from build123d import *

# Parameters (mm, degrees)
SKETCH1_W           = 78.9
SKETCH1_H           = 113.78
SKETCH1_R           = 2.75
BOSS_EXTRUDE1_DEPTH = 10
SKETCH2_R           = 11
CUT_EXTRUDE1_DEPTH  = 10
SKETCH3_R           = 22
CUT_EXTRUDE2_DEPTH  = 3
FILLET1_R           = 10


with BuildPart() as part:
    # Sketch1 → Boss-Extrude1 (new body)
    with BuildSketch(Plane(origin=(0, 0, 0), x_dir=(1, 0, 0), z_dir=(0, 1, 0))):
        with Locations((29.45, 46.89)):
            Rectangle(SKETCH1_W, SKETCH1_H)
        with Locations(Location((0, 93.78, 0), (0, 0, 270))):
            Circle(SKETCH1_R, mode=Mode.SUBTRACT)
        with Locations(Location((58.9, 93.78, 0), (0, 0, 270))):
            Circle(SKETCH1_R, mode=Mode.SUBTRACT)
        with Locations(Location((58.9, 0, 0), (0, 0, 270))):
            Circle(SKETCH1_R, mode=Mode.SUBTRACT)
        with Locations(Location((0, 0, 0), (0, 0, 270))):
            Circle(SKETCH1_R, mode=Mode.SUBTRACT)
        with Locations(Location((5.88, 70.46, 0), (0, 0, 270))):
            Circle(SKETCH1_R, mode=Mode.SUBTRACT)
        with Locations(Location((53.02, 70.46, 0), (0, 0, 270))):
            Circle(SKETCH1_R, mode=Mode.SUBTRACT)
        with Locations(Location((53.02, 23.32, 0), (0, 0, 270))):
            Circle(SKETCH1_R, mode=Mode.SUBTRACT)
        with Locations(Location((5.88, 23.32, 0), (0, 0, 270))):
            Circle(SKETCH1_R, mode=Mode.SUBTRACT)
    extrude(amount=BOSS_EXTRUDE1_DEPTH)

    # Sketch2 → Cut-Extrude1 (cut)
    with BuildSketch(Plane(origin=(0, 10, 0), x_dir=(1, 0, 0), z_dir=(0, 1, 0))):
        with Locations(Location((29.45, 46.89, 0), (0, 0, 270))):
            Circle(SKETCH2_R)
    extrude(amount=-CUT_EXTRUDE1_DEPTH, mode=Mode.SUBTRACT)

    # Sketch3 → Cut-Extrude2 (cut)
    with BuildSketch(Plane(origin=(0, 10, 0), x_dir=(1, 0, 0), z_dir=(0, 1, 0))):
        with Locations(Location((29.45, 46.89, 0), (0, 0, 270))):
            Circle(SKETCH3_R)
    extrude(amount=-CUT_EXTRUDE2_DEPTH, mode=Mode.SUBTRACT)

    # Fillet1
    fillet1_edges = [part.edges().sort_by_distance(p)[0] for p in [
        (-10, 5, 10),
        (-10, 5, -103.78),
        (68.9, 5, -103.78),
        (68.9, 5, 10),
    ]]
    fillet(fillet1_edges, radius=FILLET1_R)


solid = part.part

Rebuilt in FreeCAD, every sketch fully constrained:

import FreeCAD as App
import Part
import Sketcher
from FreeCAD import Vector


def edges_at(feature, points):
    """Names of the edges that pass closest to the given points."""
    edges = feature.Shape.Edges
    near = lambda p: min(range(len(edges)), key=lambda i: edges[i].distToShape(Part.Vertex(*p))[0])
    return sorted({f"Edge{near(p) + 1}" for p in points})


def add_polygon(sketch, points):
    """Adds a closed chain of lines whose ends are joined by coincident constraints."""
    first, n = sketch.GeometryCount, len(points)
    for a, b in zip(points, points[1:] + points[:1]):
        sketch.addGeometry(Part.LineSegment(App.Vector(*a, 0), App.Vector(*b, 0)), False)
    for i in range(n):
        sketch.addConstraint(Sketcher.Constraint("Coincident", first + i, 2, first + (i + 1) % n, 1))

doc = App.newDocument("Part")
body = doc.addObject("PartDesign::Body", "Body")

sketch1 = body.newObject("Sketcher::SketchObject", "Sketch")
sketch1.AttachmentSupport = (doc.getObject("XZ_Plane"), [""])
sketch1.MapMode = "FlatFace"
add_polygon(sketch1, [(-10, -103.78), (-10, 10), (68.9, 10), (68.9, -103.78)])
sketch1.addGeometry(Part.Circle(Vector(0, 0, 0), Vector(0, 0, 1), 2.75), False)
sketch1.addGeometry(Part.Circle(Vector(5.88, -23.32, 0), Vector(0, 0, 1), 2.75), False)
sketch1.addGeometry(Part.Circle(Vector(58.9, 0, 0), Vector(0, 0, 1), 2.75), False)
sketch1.addGeometry(Part.Circle(Vector(53.02, -23.32, 0), Vector(0, 0, 1), 2.75), False)
sketch1.addGeometry(Part.Circle(Vector(5.88, -70.46, 0), Vector(0, 0, 1), 2.75), False)
sketch1.addGeometry(Part.Circle(Vector(0, -93.78, 0), Vector(0, 0, 1), 2.75), False)
sketch1.addGeometry(Part.Circle(Vector(53.02, -70.46, 0), Vector(0, 0, 1), 2.75), False)
sketch1.addGeometry(Part.Circle(Vector(58.9, -93.78, 0), Vector(0, 0, 1), 2.75), False)
sketch1.addConstraint([
    Sketcher.Constraint("Vertical", 0),
    Sketcher.Constraint("Horizontal", 1),
    Sketcher.Constraint("Vertical", 2),
    Sketcher.Constraint("Horizontal", 3),
    Sketcher.Constraint("Coincident", 4, 3, -1, 1),
    Sketcher.Constraint("Equal", 4, 5),
    Sketcher.Constraint("Equal", 5, 6),
    Sketcher.Constraint("Equal", 6, 7),
    Sketcher.Constraint("Equal", 7, 8),
    Sketcher.Constraint("Equal", 8, 9),
    Sketcher.Constraint("Equal", 9, 10),
    Sketcher.Constraint("Equal", 10, 11),
    Sketcher.Constraint("PointOnObject", 6, 3, -1),
    Sketcher.Constraint("PointOnObject", 9, 3, -2),
    Sketcher.Constraint("Horizontal", 5, 3, 7, 3),
    Sketcher.Constraint("Horizontal", 8, 3, 10, 3),
    Sketcher.Constraint("Horizontal", 9, 3, 11, 3),
    Sketcher.Constraint("Vertical", 5, 3, 8, 3),
    Sketcher.Constraint("Vertical", 7, 3, 10, 3),
    Sketcher.Constraint("Vertical", 6, 3, 11, 3),
    Sketcher.Constraint("Diameter", 4, 5.5),
    Sketcher.Constraint("DistanceX", 1, 1, 1, 2, 78.9),
    Sketcher.Constraint("DistanceX", 0, 2, -1, 1, 10.0),
    Sketcher.Constraint("DistanceY", -1, 1, 0, 2, 10.0),
    Sketcher.Constraint("DistanceX", 6, 3, 1, 2, 10.0),
    Sketcher.Constraint("DistanceY", 2, 2, 11, 3, 10.0),
    Sketcher.Constraint("DistanceY", 0, 1, 0, 2, 113.78),
    Sketcher.Constraint("DistanceX", -1, 1, 5, 3, 5.88),
    Sketcher.Constraint("DistanceY", 5, 3, -1, 1, 23.32),
    Sketcher.Constraint("DistanceX", -1, 1, 7, 3, 53.02),
    Sketcher.Constraint("DistanceY", 8, 3, -1, 1, 70.46),
])
pad1 = body.newObject("PartDesign::Pad", "Pad")
pad1.Profile = sketch1
pad1.Length = 10
pad1.Reversed = True

sketch2 = body.newObject("Sketcher::SketchObject", "Sketch001")
sketch2.AttachmentSupport = (doc.getObject("XZ_Plane"), [""])
sketch2.MapMode = "FlatFace"
sketch2.AttachmentOffset = App.Placement(Vector(0, 0, -10), App.Rotation())
sketch2.addGeometry(Part.Circle(Vector(29.45, -46.89, 0), Vector(0, 0, 1), 11), False)
sketch2.addConstraint([
    Sketcher.Constraint("Diameter", 0, 22.0),
    Sketcher.Constraint("DistanceX", -1, 1, 0, 3, 29.45),
    Sketcher.Constraint("DistanceY", 0, 3, -1, 1, 46.89),
])
pocket1 = body.newObject("PartDesign::Pocket", "Pocket")
pocket1.Profile = sketch2
pocket1.Length = 10
pocket1.Reversed = True

sketch3 = body.newObject("Sketcher::SketchObject", "Sketch002")
sketch3.AttachmentSupport = (doc.getObject("XZ_Plane"), [""])
sketch3.MapMode = "FlatFace"
sketch3.AttachmentOffset = App.Placement(Vector(0, 0, -10), App.Rotation())
sketch3.addGeometry(Part.Circle(Vector(29.45, -46.89, 0), Vector(0, 0, 1), 22), False)
sketch3.addConstraint([
    Sketcher.Constraint("Diameter", 0, 44.0),
    Sketcher.Constraint("DistanceX", -1, 1, 0, 3, 29.45),
    Sketcher.Constraint("DistanceY", 0, 3, -1, 1, 46.89),
])
pocket2 = body.newObject("PartDesign::Pocket", "Pocket001")
pocket2.Profile = sketch3
pocket2.Length = 3
pocket2.Reversed = True
doc.recompute()

fillet = body.newObject("PartDesign::Fillet", "Fillet")
fillet.Base = (pocket2, edges_at(pocket2, [
    (-10, 5, 10),
    (-10, 5, -103.78),
    (68.9, 5, -103.78),
    (68.9, 5, 10),
]))
fillet.Radius = 10

doc.recompute()
